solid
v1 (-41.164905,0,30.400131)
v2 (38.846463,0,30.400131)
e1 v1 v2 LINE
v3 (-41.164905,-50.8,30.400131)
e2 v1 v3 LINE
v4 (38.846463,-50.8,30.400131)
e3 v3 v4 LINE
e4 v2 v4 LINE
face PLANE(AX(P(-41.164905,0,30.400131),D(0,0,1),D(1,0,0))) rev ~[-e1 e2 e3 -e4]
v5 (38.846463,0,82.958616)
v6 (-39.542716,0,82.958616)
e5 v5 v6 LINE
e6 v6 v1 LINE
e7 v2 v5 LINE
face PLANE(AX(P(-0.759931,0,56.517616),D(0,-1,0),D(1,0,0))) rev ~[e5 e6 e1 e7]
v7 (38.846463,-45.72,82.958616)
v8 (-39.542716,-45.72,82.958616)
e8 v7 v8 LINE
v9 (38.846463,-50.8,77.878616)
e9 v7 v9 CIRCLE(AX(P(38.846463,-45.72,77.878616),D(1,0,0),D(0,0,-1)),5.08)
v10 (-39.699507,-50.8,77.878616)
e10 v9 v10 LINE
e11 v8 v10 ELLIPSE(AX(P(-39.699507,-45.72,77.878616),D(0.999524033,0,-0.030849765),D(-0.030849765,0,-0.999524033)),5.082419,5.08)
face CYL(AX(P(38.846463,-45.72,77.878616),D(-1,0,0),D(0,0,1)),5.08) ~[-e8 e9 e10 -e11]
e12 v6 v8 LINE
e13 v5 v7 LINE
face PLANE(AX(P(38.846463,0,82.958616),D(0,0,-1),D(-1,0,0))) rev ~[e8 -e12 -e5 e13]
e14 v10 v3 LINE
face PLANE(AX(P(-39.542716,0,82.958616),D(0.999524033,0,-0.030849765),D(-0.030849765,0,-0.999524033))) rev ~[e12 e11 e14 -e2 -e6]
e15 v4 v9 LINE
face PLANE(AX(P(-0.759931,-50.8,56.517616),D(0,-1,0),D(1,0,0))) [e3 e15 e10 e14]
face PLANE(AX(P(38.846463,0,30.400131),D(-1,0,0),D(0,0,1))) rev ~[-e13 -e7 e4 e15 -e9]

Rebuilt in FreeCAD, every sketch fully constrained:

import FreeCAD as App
import Part
import Sketcher
from FreeCAD import Vector
Q = App.Units.Quantity


def edges_at(feature, points):
    """Names of the edges that pass closest to the given points."""
    edges = feature.Shape.Edges
    near = lambda p: min(range(len(edges)), key=lambda i: edges[i].distToShape(Part.Vertex(*p))[0])
    return sorted({f"Edge{near(p) + 1}" for p in points})


def add_polygon(sketch, points):
    """Adds a closed chain of lines whose ends are joined by coincident constraints."""
    first, n = sketch.GeometryCount, len(points)
    for a, b in zip(points, points[1:] + points[:1]):
        sketch.addGeometry(Part.LineSegment(App.Vector(*a, 0), App.Vector(*b, 0)), False)
    for i in range(n):
        sketch.addConstraint(Sketcher.Constraint("Coincident", first + i, 2, first + (i + 1) % n, 1))

doc = App.newDocument("Part")
body = doc.addObject("PartDesign::Body", "Body")

# Sketch on XZ plane
sketch1 = body.newObject("Sketcher::SketchObject", "Sketch")
sketch1.AttachmentSupport = (doc.getObject("XZ_Plane"), [""])
sketch1.MapMode = "FlatFace"
add_polygon(sketch1, [(-40, 83), (-41, 30), (39, 30), (39, 83)])  # lines 0-3
sketch1.addConstraint([
    Sketcher.Constraint("Horizontal", 1),
    Sketcher.Constraint("Vertical", 2),
    Sketcher.Constraint("Horizontal", 3),
    Sketcher.Constraint("DistanceX", 3, 2, -1, 1, Q("1.5567998 in")),
    Sketcher.Constraint("DistanceX", 1, 1, 1, 2, Q("80.011368 mm")),
    Sketcher.Constraint("DistanceX", 3, 2, 3, 1, Q("78.389179 mm")),
    Sketcher.Constraint("DistanceY", 2, 1, 2, 2, Q("52.558485 mm")),
    Sketcher.Constraint("DistanceY", -1, 1, 0, 2, Q("30.400131 mm")),
])
pad1 = body.newObject("PartDesign::Pad", "Pad")
pad1.Profile = sketch1
pad1.Length = Q("2 in")
doc.recompute()

fillet = body.newObject("PartDesign::Fillet", "Fillet")
fillet.Base = (pad1, edges_at(pad1, [(-0.348, -50.8, 82.959)]))
fillet.Radius = Q("0.2 in")

doc.recompute()
